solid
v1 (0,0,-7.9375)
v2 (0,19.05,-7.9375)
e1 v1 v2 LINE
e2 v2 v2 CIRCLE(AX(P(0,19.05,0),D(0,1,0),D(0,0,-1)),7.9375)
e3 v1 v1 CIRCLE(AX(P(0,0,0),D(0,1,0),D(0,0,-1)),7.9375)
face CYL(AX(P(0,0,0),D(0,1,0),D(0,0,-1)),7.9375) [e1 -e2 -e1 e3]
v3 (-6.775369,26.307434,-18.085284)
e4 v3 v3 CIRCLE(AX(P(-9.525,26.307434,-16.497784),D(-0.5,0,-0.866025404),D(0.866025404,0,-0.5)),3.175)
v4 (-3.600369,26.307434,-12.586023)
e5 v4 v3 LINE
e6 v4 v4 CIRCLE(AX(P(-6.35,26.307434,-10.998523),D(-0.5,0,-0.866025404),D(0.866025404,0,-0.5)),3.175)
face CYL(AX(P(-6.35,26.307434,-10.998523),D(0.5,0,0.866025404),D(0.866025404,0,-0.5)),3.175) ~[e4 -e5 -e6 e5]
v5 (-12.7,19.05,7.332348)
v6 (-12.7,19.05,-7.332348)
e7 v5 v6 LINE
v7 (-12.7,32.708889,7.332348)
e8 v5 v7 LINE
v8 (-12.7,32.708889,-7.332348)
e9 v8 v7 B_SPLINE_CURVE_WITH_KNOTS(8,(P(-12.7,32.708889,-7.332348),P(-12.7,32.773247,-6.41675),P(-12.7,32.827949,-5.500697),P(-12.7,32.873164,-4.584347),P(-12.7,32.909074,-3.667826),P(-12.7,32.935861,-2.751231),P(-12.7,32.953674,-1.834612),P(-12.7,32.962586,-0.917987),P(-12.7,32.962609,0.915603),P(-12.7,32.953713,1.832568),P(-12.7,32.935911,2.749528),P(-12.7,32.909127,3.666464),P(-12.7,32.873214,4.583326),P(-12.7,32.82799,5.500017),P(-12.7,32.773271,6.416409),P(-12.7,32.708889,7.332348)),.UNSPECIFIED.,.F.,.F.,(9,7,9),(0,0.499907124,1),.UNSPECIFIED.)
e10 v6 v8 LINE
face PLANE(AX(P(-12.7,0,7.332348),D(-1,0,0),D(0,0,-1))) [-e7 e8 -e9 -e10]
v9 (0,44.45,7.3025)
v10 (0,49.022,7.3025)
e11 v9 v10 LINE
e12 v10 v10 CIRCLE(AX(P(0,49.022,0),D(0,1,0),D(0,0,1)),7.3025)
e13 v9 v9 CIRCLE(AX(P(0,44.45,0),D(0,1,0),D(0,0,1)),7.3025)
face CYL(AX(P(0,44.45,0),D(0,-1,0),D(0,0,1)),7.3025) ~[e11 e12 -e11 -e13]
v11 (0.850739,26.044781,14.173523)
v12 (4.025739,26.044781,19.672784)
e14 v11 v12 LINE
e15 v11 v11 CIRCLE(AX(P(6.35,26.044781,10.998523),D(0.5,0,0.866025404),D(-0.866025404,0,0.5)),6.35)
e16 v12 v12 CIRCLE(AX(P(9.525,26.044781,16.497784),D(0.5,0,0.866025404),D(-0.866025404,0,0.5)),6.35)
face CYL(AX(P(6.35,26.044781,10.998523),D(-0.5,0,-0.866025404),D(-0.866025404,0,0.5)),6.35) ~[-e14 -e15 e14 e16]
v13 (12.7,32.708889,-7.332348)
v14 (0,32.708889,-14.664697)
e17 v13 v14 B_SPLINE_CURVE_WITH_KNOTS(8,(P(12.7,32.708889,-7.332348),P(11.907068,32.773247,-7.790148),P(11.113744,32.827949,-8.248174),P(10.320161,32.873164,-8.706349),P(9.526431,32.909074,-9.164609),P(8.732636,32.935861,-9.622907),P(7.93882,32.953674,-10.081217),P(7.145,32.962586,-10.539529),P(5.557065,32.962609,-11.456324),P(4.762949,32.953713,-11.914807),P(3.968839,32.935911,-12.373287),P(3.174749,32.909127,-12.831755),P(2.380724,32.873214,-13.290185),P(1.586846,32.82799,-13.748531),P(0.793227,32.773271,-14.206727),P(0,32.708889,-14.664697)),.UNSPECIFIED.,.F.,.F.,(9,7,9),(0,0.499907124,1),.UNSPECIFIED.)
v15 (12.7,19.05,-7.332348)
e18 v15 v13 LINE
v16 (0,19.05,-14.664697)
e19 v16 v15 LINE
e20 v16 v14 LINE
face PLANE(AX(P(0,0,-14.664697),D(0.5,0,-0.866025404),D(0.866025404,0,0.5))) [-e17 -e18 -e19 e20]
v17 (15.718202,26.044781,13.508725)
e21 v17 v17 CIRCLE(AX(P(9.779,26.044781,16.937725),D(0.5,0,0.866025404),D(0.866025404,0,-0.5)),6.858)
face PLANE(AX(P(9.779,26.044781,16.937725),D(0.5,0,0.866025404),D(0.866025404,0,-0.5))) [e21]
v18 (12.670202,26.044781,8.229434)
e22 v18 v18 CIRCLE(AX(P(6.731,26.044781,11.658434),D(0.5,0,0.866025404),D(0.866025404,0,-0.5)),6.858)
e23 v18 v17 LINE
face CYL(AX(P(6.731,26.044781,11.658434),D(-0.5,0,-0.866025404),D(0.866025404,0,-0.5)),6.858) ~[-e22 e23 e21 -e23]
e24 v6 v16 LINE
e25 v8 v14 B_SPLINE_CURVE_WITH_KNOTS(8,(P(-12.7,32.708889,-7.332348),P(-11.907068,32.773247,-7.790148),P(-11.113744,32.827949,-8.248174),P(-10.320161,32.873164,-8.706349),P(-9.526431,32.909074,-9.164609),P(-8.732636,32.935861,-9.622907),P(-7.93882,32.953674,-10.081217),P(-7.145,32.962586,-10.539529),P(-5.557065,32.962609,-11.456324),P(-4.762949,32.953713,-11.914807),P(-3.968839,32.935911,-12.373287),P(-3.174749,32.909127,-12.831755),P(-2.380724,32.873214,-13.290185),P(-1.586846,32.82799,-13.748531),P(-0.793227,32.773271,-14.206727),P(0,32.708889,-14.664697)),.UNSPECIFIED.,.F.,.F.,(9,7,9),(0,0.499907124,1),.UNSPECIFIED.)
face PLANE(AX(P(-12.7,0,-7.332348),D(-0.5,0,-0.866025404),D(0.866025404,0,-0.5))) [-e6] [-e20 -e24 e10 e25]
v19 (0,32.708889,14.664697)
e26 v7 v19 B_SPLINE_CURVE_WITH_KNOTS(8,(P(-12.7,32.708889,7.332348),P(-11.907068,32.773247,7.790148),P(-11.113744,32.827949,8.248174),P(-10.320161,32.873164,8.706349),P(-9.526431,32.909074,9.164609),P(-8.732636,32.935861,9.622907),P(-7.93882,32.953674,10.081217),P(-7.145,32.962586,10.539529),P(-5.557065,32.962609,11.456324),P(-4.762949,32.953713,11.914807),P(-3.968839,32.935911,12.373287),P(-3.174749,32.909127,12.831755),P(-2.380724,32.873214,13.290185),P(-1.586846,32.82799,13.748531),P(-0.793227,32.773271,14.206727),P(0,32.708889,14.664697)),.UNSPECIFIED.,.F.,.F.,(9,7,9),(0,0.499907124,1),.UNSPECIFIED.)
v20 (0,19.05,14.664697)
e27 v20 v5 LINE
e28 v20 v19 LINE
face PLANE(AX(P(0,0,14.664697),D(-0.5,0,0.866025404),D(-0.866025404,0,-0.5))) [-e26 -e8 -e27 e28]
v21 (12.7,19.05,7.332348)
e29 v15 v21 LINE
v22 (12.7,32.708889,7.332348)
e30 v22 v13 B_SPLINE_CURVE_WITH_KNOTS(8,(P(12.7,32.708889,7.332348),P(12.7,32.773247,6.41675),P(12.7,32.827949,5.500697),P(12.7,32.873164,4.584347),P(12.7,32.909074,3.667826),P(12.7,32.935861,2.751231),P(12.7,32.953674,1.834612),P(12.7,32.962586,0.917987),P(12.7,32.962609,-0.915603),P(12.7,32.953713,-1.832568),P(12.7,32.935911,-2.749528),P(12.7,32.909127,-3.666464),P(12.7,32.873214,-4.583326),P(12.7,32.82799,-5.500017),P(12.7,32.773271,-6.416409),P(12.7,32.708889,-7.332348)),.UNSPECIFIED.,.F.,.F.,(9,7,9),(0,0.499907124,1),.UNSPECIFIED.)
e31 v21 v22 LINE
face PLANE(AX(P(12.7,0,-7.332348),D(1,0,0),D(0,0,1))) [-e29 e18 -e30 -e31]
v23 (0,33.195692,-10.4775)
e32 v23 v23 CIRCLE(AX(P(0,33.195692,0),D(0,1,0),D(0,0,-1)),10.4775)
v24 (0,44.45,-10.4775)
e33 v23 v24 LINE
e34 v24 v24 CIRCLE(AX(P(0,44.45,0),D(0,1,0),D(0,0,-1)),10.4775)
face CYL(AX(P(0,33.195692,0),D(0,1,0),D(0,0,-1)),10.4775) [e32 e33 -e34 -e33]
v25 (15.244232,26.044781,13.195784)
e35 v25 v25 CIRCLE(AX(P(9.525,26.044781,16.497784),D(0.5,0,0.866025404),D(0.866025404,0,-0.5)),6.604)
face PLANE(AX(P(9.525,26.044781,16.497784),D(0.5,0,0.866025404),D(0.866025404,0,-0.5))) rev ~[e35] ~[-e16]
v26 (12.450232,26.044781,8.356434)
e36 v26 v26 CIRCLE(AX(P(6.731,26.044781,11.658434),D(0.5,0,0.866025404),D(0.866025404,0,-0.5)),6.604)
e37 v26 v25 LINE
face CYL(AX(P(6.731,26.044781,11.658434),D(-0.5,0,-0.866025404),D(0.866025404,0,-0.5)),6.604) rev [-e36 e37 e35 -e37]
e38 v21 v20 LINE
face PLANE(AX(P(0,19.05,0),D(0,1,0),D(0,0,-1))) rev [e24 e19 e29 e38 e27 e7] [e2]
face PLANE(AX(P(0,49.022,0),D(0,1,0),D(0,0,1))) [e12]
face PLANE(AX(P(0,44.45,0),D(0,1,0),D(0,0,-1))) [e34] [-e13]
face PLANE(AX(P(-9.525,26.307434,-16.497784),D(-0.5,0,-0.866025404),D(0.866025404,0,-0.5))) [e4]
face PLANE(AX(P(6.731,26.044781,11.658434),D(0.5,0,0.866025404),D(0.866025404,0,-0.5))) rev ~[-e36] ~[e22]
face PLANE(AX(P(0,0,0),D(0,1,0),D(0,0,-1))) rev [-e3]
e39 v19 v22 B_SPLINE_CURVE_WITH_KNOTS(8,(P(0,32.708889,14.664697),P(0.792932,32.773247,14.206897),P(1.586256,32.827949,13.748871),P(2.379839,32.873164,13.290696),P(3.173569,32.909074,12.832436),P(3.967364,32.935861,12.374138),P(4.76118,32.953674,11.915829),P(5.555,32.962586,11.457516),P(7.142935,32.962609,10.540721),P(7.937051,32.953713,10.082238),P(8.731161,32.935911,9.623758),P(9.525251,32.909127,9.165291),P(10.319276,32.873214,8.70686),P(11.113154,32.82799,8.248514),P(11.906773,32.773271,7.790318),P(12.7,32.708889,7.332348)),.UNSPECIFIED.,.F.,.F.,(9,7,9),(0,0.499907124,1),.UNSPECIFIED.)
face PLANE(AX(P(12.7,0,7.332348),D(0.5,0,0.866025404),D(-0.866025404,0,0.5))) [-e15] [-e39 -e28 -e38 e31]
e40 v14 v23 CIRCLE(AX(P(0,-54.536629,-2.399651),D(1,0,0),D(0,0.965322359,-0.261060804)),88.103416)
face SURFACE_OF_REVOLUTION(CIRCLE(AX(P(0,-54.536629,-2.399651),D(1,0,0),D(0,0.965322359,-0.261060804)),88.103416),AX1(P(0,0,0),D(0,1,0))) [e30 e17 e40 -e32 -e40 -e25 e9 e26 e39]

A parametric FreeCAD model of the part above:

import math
import FreeCAD as App
import Part
import Sketcher
Q = App.Units.Quantity


def add_polygon(sketch, points):
    """Adds a closed chain of lines whose ends are joined by coincident constraints."""
    first, n = sketch.GeometryCount, len(points)
    for a, b in zip(points, points[1:] + points[:1]):
        sketch.addGeometry(Part.LineSegment(App.Vector(*a, 0), App.Vector(*b, 0)), False)
    for i in range(n):
        sketch.addConstraint(Sketcher.Constraint("Coincident", first + i, 2, first + (i + 1) % n, 1))

doc = App.newDocument("Part")
body = doc.addObject("PartDesign::Body", "Body")

# Sketch on YZ plane
sketch1 = body.newObject("Sketcher::SketchObject", "Sketch")
sketch1.AttachmentSupport = (doc.getObject("YZ_Plane"), [""])
sketch1.MapMode = "FlatFace"
sketch1.addGeometry(Part.LineSegment(App.Vector(33.195692, -10.4775, 0), App.Vector(44.45, -10.4775, 0)), False)
sketch1.addGeometry(Part.LineSegment(App.Vector(44.45, -10.4775, 0), App.Vector(44.45, 0, 0)), False)
sketch1.addGeometry(Part.LineSegment(App.Vector(44.45, 0, 0), App.Vector(0, 0, 0)), False)
sketch1.addGeometry(Part.LineSegment(App.Vector(0, 0, 0), App.Vector(0, -7.9375, 0)), False)
sketch1.addGeometry(Part.LineSegment(App.Vector(0, -7.9375, 0), App.Vector(19.05, -7.9375, 0)), False)
sketch1.addGeometry(Part.LineSegment(App.Vector(19.05, -7.9375, 0), App.Vector(19.05, -25.4, 0)), False)
sketch1.addGeometry(Part.LineSegment(App.Vector(19.05, -25.4, 0), App.Vector(30.511568, -25.4, 0)), False)
sketch1.addGeometry(Part.ArcOfCircle(Part.Circle(App.Vector(-54.536629, -2.399651, 0), App.Vector(0, 0, 1), 88.103416), math.radians(-15.133016), math.radians(-5.260608)), False)
sketch1.addConstraint(Sketcher.Constraint("Coincident", 0, 2, 1, 1))
sketch1.addConstraint(Sketcher.Constraint("Coincident", 1, 2, 2, 1))
sketch1.addConstraint(Sketcher.Constraint("Coincident", 2, 2, 3, 1))
sketch1.addConstraint(Sketcher.Constraint("Coincident", 3, 2, 4, 1))
sketch1.addConstraint(Sketcher.Constraint("Coincident", 4, 2, 5, 1))
sketch1.addConstraint(Sketcher.Constraint("Coincident", 5, 2, 6, 1))
sketch1.addConstraint(Sketcher.Constraint("Coincident", 6, 2, 7, 1))
sketch1.addConstraint(Sketcher.Constraint("Coincident", 7, 2, 0, 1))
sketch1.addConstraint(Sketcher.Constraint("Horizontal", 0))
sketch1.addConstraint(Sketcher.Constraint("Vertical", 1))
sketch1.addConstraint(Sketcher.Constraint("Horizontal", 2))
sketch1.addConstraint(Sketcher.Constraint("Vertical", 3))
sketch1.addConstraint(Sketcher.Constraint("Horizontal", 4))
sketch1.addConstraint(Sketcher.Constraint("Vertical", 5))
sketch1.addConstraint(Sketcher.Constraint("Horizontal", 6))
sketch1.addConstraint(Sketcher.Constraint("Coincident", 2, 2, -1, 1))
sketch1.addConstraint(Sketcher.Constraint("DistanceY", 5, 2, -1, 1, Q("1 in")))
sketch1.addConstraint(Sketcher.Constraint("DistanceX", 4, 2, 0, 2, Q("1 in")))
sketch1.addConstraint(Sketcher.Constraint("DistanceX", 2, 2, 2, 1, Q("1.75 in")))
sketch1.addConstraint(Sketcher.Constraint("DistanceY", 0, 2, 3, 2, Q("0.1 in")))
sketch1.addConstraint(Sketcher.Constraint("DistanceY", 3, 2, 3, 1, Q("0.3125 in")))
sketch1.addConstraint(Sketcher.Constraint("Radius", 7, Q("88.103416 mm")))
sketch1.addConstraint(Sketcher.Constraint("DistanceX", 0, 1, 0, 2, Q("11.254308 mm")))
sketch1.addConstraint(Sketcher.Constraint("DistanceX", 6, 1, 6, 2, Q("11.461568 mm")))
revolution = body.newObject("PartDesign::Revolution", "Revolution")
revolution.Profile = sketch1
revolution.ReferenceAxis = (sketch1, ["H_Axis"])
revolution.Angle = 360

# Sketch on XZ plane
sketch2 = body.newObject("Sketcher::SketchObject", "Sketch001")
sketch2.AttachmentSupport = (doc.getObject("XZ_Plane"), [""])
sketch2.MapMode = "FlatFace"
sketch2.addGeometry(Part.Circle(App.Vector(0, 0, 0), App.Vector(0, 0, 1), 31.284897), False)  # 0
add_polygon(sketch2, [(-12.7, 7.332348), (-12.7, -7.332348), (0, -14.664697), (12.7, -7.332348), (12.7, 7.332348), (0, 14.664697)])  # lines 1-6
sketch2.addConstraint(Sketcher.Constraint("Vertical", 1))
sketch2.addConstraint(Sketcher.Constraint("Vertical", 4))
sketch2.addConstraint(Sketcher.Constraint("Coincident", 0, 3, -1, 1))
sketch2.addConstraint(Sketcher.Constraint("Symmetric", 1, 2, 4, 2, -1, 1))
sketch2.addConstraint(Sketcher.Constraint("Symmetric", 2, 2, 5, 2, -1, 1))
sketch2.addConstraint(Sketcher.Constraint("PointOnObject", 2, 2, -2))
sketch2.addConstraint(Sketcher.Constraint("Parallel", 3, 6))
sketch2.addConstraint(Sketcher.Constraint("Horizontal", 1, 2, 3, 2))
sketch2.addConstraint(Sketcher.Constraint("Angle", 2, Q("-30 deg")))
sketch2.addConstraint(Sketcher.Constraint("DistanceX", 1, 2, 3, 2, Q("1 in")))
sketch2.addConstraint(Sketcher.Constraint("Diameter", 0, Q("62.569794 mm")))
sketch2.addConstraint(Sketcher.Constraint("DistanceY", 1, 2, 1, 1, Q("14.664697 mm")))
pocket1 = body.newObject("PartDesign::Pocket", "Pocket")
pocket1.Profile = sketch2
pocket1.Type = "ThroughAll"

# Sketch on an angled plane
sketch3 = body.newObject("Sketcher::SketchObject", "Sketch002")
sketch3.Placement = App.Placement(App.Vector(-6.35, 0, -10.998523), App.Rotation(App.Vector(-0.866025404, 0, 0.5), App.Vector(0, 1, 0), App.Vector(-0.5, 0, -0.866025404), "ZXY"))
sketch3.addGeometry(Part.Circle(App.Vector(0, 26.307434, 0), App.Vector(0, 0, 1), 3.175), False)
sketch3.addConstraint(Sketcher.Constraint("PointOnObject", 0, 3, -2))
sketch3.addConstraint(Sketcher.Constraint("Diameter", 0, Q("0.25 in")))
sketch3.addConstraint(Sketcher.Constraint("DistanceY", -1, 1, 0, 3, Q("26.307434 mm")))
pad1 = body.newObject("PartDesign::Pad", "Pad")
pad1.Profile = sketch3
pad1.Length = Q("0.25 in")

# Sketch on an angled plane
sketch4 = body.newObject("Sketcher::SketchObject", "Sketch003")
sketch4.Placement = App.Placement(App.Vector(6.35, 0, 10.998523), App.Rotation(App.Vector(0.866025404, 0, -0.5), App.Vector(0, 1, 0), App.Vector(0.5, 0, 0.866025404), "ZXY"))
sketch4.addGeometry(Part.Circle(App.Vector(0, 26.044781, 0), App.Vector(0, 0, 1), 6.35), False)
sketch4.addConstraint(Sketcher.Constraint("PointOnObject", 0, 3, -2))
sketch4.addConstraint(Sketcher.Constraint("Diameter", 0, Q("0.5 in")))
sketch4.addConstraint(Sketcher.Constraint("DistanceY", -1, 1, 0, 3, Q("26.044781 mm")))
pad2 = body.newObject("PartDesign::Pad", "Pad001")
pad2.Profile = sketch4
pad2.Length = Q("0.25 in")
body2 = doc.addObject("PartDesign::Body", "Body001")

# Sketch on an angled plane
sketch5 = body2.newObject("Sketcher::SketchObject", "Sketch004")
sketch5.Placement = App.Placement(App.Vector(9.525, 0, 16.497784), App.Rotation(App.Vector(0.866025404, 0, -0.5), App.Vector(0, 1, 0), App.Vector(0.5, 0, 0.866025404), "ZXY"))
sketch5.addGeometry(Part.Circle(App.Vector(0, 26.044781, 0), App.Vector(0, 0, 1), 6.858), False)
sketch5.addGeometry(Part.Circle(App.Vector(0, 26.044781, 0), App.Vector(0, 0, 1), 6.604), False)
sketch5.addConstraint(Sketcher.Constraint("Coincident", 1, 3, 0, 3))
sketch5.addConstraint(Sketcher.Constraint("PointOnObject", 0, 3, -2))
sketch5.addConstraint(Sketcher.Constraint("Diameter", 0, Q("0.54 in")))
sketch5.addConstraint(Sketcher.Constraint("Diameter", 1, Q("0.52 in")))
sketch5.addConstraint(Sketcher.Constraint("DistanceY", -1, 1, 0, 3, Q("26.044781 mm")))
pad3 = body2.newObject("PartDesign::Pad", "Pad002")
pad3.Profile = sketch5
pad3.Type = "TwoLengths"
pad3.Length = Q("0.02 in")
pad3.Length2 = Q("0.22 in")
body.AllowCompound = True
doc.recompute()

boolean = body.newObject("PartDesign::Boolean", "Boolean")
boolean.Type = "Fuse"
boolean.addObjects([body2])

# Sketch on an angled plane
sketch6 = body.newObject("Sketcher::SketchObject", "Sketch005")
sketch6.Placement = App.Placement(App.Vector(9.525, 0, 16.497784), App.Rotation(App.Vector(0.866025404, 0, -0.5), App.Vector(0, 1, 0), App.Vector(0.5, 0, 0.866025404), "ZXY"))
sketch6.addGeometry(Part.Circle(App.Vector(0, 26.044781, 0), App.Vector(0, 0, 1), 6.604), False)
sketch6.addConstraint(Sketcher.Constraint("PointOnObject", 0, 3, -2))
sketch6.addConstraint(Sketcher.Constraint("Diameter", 0, Q("0.52 in")))
sketch6.addConstraint(Sketcher.Constraint("DistanceY", -1, 1, 0, 3, Q("26.044781 mm")))
pad4 = body.newObject("PartDesign::Pad", "Pad003")
pad4.Profile = sketch6
pad4.Length = Q("0.02 in")

# Sketch on XZ plane
sketch7 = body.newObject("Sketcher::SketchObject", "Sketch006")
sketch7.AttachmentSupport = (doc.getObject("XZ_Plane"), [""])
sketch7.MapMode = "FlatFace"
sketch7.AttachmentOffset = App.Placement(App.Vector(0, 0, -1.75 * 25.4), App.Rotation())
sketch7.addGeometry(Part.Circle(App.Vector(0, 0, 0), App.Vector(0, 0, 1), 7.3025), False)
sketch7.addConstraint(Sketcher.Constraint("Coincident", 0, 3, -1, 1))
sketch7.addConstraint(Sketcher.Constraint("Diameter", 0, Q("0.575 in")))
pad5 = body.newObject("PartDesign::Pad", "Pad004")
pad5.Profile = sketch7
pad5.Length = Q("0.18 in")
pad5.Reversed = True

doc.recompute()
